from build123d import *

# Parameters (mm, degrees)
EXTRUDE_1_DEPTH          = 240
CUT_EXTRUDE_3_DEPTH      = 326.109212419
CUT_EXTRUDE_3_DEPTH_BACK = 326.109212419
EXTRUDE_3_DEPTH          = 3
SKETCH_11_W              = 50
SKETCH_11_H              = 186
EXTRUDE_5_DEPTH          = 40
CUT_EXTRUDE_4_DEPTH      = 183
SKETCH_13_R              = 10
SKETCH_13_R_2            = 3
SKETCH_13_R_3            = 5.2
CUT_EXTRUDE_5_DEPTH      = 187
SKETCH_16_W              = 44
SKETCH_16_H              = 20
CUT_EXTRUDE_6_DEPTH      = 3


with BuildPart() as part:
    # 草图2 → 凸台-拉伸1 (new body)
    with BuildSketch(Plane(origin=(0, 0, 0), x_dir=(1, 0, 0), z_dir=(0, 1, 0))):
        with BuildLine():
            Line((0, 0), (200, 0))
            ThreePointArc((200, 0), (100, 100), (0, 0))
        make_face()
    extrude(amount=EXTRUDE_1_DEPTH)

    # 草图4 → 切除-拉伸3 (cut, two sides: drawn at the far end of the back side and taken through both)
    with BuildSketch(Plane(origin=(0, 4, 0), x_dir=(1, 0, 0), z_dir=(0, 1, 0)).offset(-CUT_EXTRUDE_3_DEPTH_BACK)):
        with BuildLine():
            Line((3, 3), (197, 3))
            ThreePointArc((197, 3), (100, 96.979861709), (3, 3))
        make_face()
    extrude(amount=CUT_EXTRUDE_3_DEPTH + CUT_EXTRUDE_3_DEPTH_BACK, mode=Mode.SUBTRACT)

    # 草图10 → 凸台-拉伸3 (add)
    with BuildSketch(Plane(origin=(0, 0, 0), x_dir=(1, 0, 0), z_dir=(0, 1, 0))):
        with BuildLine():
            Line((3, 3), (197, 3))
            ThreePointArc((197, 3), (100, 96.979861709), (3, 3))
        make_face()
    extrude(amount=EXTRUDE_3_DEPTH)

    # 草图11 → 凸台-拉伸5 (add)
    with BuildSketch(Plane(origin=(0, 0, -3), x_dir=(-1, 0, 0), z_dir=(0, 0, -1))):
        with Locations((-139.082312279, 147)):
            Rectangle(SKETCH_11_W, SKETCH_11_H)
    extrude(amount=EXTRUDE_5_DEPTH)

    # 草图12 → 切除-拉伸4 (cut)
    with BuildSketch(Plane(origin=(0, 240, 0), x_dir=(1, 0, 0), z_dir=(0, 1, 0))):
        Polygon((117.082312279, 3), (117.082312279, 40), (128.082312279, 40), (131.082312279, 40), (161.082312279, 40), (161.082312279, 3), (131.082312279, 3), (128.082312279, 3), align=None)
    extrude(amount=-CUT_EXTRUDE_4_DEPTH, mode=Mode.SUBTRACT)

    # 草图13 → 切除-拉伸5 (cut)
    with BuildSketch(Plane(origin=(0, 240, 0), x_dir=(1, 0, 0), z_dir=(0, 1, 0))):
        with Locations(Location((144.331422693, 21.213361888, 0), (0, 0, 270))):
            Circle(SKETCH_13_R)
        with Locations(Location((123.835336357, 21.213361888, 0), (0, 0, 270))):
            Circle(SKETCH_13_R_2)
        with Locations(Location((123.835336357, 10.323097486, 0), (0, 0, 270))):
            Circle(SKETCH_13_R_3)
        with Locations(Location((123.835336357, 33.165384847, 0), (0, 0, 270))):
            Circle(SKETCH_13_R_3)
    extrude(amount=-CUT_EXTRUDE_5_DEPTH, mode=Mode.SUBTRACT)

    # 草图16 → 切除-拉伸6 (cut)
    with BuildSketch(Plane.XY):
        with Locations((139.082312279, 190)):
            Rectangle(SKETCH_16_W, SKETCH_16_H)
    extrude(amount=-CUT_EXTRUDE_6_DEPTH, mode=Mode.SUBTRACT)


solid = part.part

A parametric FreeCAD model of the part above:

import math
import FreeCAD as App
import Part
import Sketcher
from FreeCAD import Vector
Q = App.Units.Quantity


def add_polygon(sketch, points):
    """Adds a closed chain of lines whose ends are joined by coincident constraints."""
    first, n = sketch.GeometryCount, len(points)
    for a, b in zip(points, points[1:] + points[:1]):
        sketch.addGeometry(Part.LineSegment(App.Vector(*a, 0), App.Vector(*b, 0)), False)
    for i in range(n):
        sketch.addConstraint(Sketcher.Constraint("Coincident", first + i, 2, first + (i + 1) % n, 1))

doc = App.newDocument("Part")
body = doc.addObject("PartDesign::Body", "Body")

sketch1 = body.newObject("Sketcher::SketchObject", "Sketch")
sketch1.AttachmentSupport = (doc.getObject("XZ_Plane"), [""])
sketch1.MapMode = "FlatFace"
sketch1.addGeometry(Part.LineSegment(Vector(0, 0, 0), Vector(200, 0, 0)), False)
sketch1.addGeometry(Part.ArcOfCircle(Part.Circle(Vector(100, 0, 0), Vector(0, 0, 1), 100), math.radians(180), math.radians(360)), False)
sketch1.addConstraint(Sketcher.Constraint("Coincident", 0, 1, 1, 1))
sketch1.addConstraint(Sketcher.Constraint("Coincident", 1, 2, 0, 2))
sketch1.addConstraint(Sketcher.Constraint("Horizontal", 0))
sketch1.addConstraint(Sketcher.Constraint("Coincident", 0, 1, -1, 1))
sketch1.addConstraint(Sketcher.Constraint("PointOnObject", 1, 3, -1))
sketch1.addConstraint(Sketcher.Constraint("Radius", 1, Q("100 mm")))
pad1 = body.newObject("PartDesign::Pad", "Pad")
pad1.Profile = sketch1
pad1.Length = 240
pad1.Reversed = True

sketch2 = body.newObject("Sketcher::SketchObject", "Sketch001")
sketch2.AttachmentSupport = (doc.getObject("XZ_Plane"), [""])
sketch2.MapMode = "FlatFace"
sketch2.AttachmentOffset = App.Placement(Vector(0, 0, -4), App.Rotation())
sketch2.addGeometry(Part.LineSegment(Vector(3, -3, 0), Vector(197, -3, 0)), False)
sketch2.addGeometry(Part.ArcOfCircle(Part.Circle(Vector(100, 0, 0), Vector(0, 0, 1), 97), math.radians(-178), math.radians(-2)), False)
sketch2.addConstraint(Sketcher.Constraint("Coincident", 0, 1, 1, 1))
sketch2.addConstraint(Sketcher.Constraint("Coincident", 1, 2, 0, 2))
sketch2.addConstraint(Sketcher.Constraint("Horizontal", 0))
sketch2.addConstraint(Sketcher.Constraint("DistanceX", 0, 1, 0, 2, Q("194 mm")))
sketch2.addConstraint(Sketcher.Constraint("DistanceX", -1, 1, 1, 3, Q("100 mm")))
sketch2.addConstraint(Sketcher.Constraint("DistanceY", 0, 1, -1, 1, Q("3 mm")))
sketch2.addConstraint(Sketcher.Constraint("Radius", 1, Q("97.048528 mm")))
pocket1 = body.newObject("PartDesign::Pocket", "Pocket")
pocket1.Profile = sketch2
pocket1.Type = "ThroughAll"
pocket1.Midplane = True

sketch3 = body.newObject("Sketcher::SketchObject", "Sketch002")
sketch3.AttachmentSupport = (doc.getObject("XZ_Plane"), [""])
sketch3.MapMode = "FlatFace"
sketch3.addGeometry(Part.LineSegment(Vector(3, -3, 0), Vector(197, -3, 0)), False)
sketch3.addGeometry(Part.ArcOfCircle(Part.Circle(Vector(100, 0, 0), Vector(0, 0, 1), 97), math.radians(-178), math.radians(-2)), False)
sketch3.addConstraint(Sketcher.Constraint("Coincident", 0, 1, 1, 1))
sketch3.addConstraint(Sketcher.Constraint("Coincident", 1, 2, 0, 2))
sketch3.addConstraint(Sketcher.Constraint("Horizontal", 0))
sketch3.addConstraint(Sketcher.Constraint("DistanceX", 0, 1, 0, 2, Q("194 mm")))
sketch3.addConstraint(Sketcher.Constraint("DistanceX", -1, 1, 1, 3, Q("100 mm")))
sketch3.addConstraint(Sketcher.Constraint("DistanceY", 0, 1, -1, 1, Q("3 mm")))
sketch3.addConstraint(Sketcher.Constraint("Radius", 1, Q("97.048528 mm")))
pad2 = body.newObject("PartDesign::Pad", "Pad001")
pad2.Profile = sketch3
pad2.Length = 3
pad2.Reversed = True

sketch4 = body.newObject("Sketcher::SketchObject", "Sketch003")
sketch4.AttachmentSupport = (doc.getObject("XY_Plane"), [""])
sketch4.MapMode = "FlatFace"
sketch4.AttachmentOffset = App.Placement(Vector(0, 0, -3), App.Rotation())
add_polygon(sketch4, [(164, 240), (164, 54), (114, 54), (114, 240)])
sketch4.addConstraint(Sketcher.Constraint("Vertical", 0))
sketch4.addConstraint(Sketcher.Constraint("Horizontal", 1))
sketch4.addConstraint(Sketcher.Constraint("Vertical", 2))
sketch4.addConstraint(Sketcher.Constraint("Horizontal", 3))
sketch4.addConstraint(Sketcher.Constraint("DistanceX", 1, 2, 1, 1, Q("50 mm")))
sketch4.addConstraint(Sketcher.Constraint("DistanceY", 0, 2, 0, 1, Q("186 mm")))
sketch4.addConstraint(Sketcher.Constraint("DistanceY", -1, 1, 0, 2, Q("54 mm")))
sketch4.addConstraint(Sketcher.Constraint("DistanceX", -1, 1, 0, 2, Q("164.082312 mm")))
pad3 = body.newObject("PartDesign::Pad", "Pad002")
pad3.Profile = sketch4
pad3.Length = 40
pad3.Reversed = True

sketch5 = body.newObject("Sketcher::SketchObject", "Sketch004")
sketch5.AttachmentSupport = (doc.getObject("XZ_Plane"), [""])
sketch5.MapMode = "FlatFace"
sketch5.AttachmentOffset = App.Placement(Vector(0, 0, -240), App.Rotation())
add_polygon(sketch5, [(117, -40), (117, -3), (161, -3), (161, -40)])
sketch5.addConstraint(Sketcher.Constraint("Vertical", 0))
sketch5.addConstraint(Sketcher.Constraint("Horizontal", 1))
sketch5.addConstraint(Sketcher.Constraint("Vertical", 2))
sketch5.addConstraint(Sketcher.Constraint("Horizontal", 3))
sketch5.addConstraint(Sketcher.Constraint("DistanceX", 1, 1, 1, 2, Q("44 mm")))
sketch5.addConstraint(Sketcher.Constraint("DistanceY", 0, 1, 0, 2, Q("37 mm")))
sketch5.addConstraint(Sketcher.Constraint("DistanceY", 0, 2, -1, 1, Q("3 mm")))
sketch5.addConstraint(Sketcher.Constraint("DistanceX", -1, 1, 0, 2, Q("117.082312 mm")))
pocket2 = body.newObject("PartDesign::Pocket", "Pocket001")
pocket2.Profile = sketch5
pocket2.Length = 183
pocket2.Reversed = True

sketch6 = body.newObject("Sketcher::SketchObject", "Sketch005")
sketch6.AttachmentSupport = (doc.getObject("XZ_Plane"), [""])
sketch6.MapMode = "FlatFace"
sketch6.AttachmentOffset = App.Placement(Vector(0, 0, -240), App.Rotation())
sketch6.addGeometry(Part.Circle(Vector(144.3, -21.2, 0), Vector(0, 0, 1), 10), False)
sketch6.addGeometry(Part.Circle(Vector(123.8, -21.2, 0), Vector(0, 0, 1), 3), False)
sketch6.addGeometry(Part.Circle(Vector(123.8, -10.3, 0), Vector(0, 0, 1), 5.2), False)
sketch6.addGeometry(Part.Circle(Vector(123.8, -33.2, 0), Vector(0, 0, 1), 5.2), False)
sketch6.addConstraint(Sketcher.Constraint("Equal", 2, 3))
sketch6.addConstraint(Sketcher.Constraint("Horizontal", 0, 3, 1, 3))
sketch6.addConstraint(Sketcher.Constraint("Vertical", 1, 3, 2, 3))
sketch6.addConstraint(Sketcher.Constraint("Vertical", 2, 3, 3, 3))
sketch6.addConstraint(Sketcher.Constraint("Diameter", 0, Q("20 mm")))
sketch6.addConstraint(Sketcher.Constraint("Diameter", 1, Q("6 mm")))
sketch6.addConstraint(Sketcher.Constraint("Diameter", 2, Q("10.4 mm")))
sketch6.addConstraint(Sketcher.Constraint("DistanceY", 0, 3, -1, 1, Q("21.213362 mm")))
sketch6.addConstraint(Sketcher.Constraint("DistanceX", -1, 1, 0, 3, Q("144.331423 mm")))
sketch6.addConstraint(Sketcher.Constraint("DistanceX", -1, 1, 1, 3, Q("123.835336 mm")))
sketch6.addConstraint(Sketcher.Constraint("DistanceY", 2, 3, -1, 1, Q("10.323097 mm")))
sketch6.addConstraint(Sketcher.Constraint("DistanceY", 3, 3, -1, 1, Q("33.165385 mm")))
pocket3 = body.newObject("PartDesign::Pocket", "Pocket002")
pocket3.Profile = sketch6
pocket3.Length = 187
pocket3.Reversed = True

sketch7 = body.newObject("Sketcher::SketchObject", "Sketch006")
sketch7.AttachmentSupport = (doc.getObject("XY_Plane"), [""])
sketch7.MapMode = "FlatFace"
add_polygon(sketch7, [(117, 200), (117, 180), (161, 180), (161, 200)])
sketch7.addConstraint(Sketcher.Constraint("Vertical", 0))
sketch7.addConstraint(Sketcher.Constraint("Horizontal", 1))
sketch7.addConstraint(Sketcher.Constraint("Vertical", 2))
sketch7.addConstraint(Sketcher.Constraint("Horizontal", 3))
sketch7.addConstraint(Sketcher.Constraint("DistanceX", 1, 1, 1, 2, Q("44 mm")))
sketch7.addConstraint(Sketcher.Constraint("DistanceY", 0, 2, 0, 1, Q("20 mm")))
sketch7.addConstraint(Sketcher.Constraint("DistanceY", -1, 1, 0, 2, Q("180 mm")))
sketch7.addConstraint(Sketcher.Constraint("DistanceX", -1, 1, 0, 2, Q("117.082312 mm")))
pocket4 = body.newObject("PartDesign::Pocket", "Pocket003")
pocket4.Profile = sketch7
pocket4.Length = 3

doc.recompute()
